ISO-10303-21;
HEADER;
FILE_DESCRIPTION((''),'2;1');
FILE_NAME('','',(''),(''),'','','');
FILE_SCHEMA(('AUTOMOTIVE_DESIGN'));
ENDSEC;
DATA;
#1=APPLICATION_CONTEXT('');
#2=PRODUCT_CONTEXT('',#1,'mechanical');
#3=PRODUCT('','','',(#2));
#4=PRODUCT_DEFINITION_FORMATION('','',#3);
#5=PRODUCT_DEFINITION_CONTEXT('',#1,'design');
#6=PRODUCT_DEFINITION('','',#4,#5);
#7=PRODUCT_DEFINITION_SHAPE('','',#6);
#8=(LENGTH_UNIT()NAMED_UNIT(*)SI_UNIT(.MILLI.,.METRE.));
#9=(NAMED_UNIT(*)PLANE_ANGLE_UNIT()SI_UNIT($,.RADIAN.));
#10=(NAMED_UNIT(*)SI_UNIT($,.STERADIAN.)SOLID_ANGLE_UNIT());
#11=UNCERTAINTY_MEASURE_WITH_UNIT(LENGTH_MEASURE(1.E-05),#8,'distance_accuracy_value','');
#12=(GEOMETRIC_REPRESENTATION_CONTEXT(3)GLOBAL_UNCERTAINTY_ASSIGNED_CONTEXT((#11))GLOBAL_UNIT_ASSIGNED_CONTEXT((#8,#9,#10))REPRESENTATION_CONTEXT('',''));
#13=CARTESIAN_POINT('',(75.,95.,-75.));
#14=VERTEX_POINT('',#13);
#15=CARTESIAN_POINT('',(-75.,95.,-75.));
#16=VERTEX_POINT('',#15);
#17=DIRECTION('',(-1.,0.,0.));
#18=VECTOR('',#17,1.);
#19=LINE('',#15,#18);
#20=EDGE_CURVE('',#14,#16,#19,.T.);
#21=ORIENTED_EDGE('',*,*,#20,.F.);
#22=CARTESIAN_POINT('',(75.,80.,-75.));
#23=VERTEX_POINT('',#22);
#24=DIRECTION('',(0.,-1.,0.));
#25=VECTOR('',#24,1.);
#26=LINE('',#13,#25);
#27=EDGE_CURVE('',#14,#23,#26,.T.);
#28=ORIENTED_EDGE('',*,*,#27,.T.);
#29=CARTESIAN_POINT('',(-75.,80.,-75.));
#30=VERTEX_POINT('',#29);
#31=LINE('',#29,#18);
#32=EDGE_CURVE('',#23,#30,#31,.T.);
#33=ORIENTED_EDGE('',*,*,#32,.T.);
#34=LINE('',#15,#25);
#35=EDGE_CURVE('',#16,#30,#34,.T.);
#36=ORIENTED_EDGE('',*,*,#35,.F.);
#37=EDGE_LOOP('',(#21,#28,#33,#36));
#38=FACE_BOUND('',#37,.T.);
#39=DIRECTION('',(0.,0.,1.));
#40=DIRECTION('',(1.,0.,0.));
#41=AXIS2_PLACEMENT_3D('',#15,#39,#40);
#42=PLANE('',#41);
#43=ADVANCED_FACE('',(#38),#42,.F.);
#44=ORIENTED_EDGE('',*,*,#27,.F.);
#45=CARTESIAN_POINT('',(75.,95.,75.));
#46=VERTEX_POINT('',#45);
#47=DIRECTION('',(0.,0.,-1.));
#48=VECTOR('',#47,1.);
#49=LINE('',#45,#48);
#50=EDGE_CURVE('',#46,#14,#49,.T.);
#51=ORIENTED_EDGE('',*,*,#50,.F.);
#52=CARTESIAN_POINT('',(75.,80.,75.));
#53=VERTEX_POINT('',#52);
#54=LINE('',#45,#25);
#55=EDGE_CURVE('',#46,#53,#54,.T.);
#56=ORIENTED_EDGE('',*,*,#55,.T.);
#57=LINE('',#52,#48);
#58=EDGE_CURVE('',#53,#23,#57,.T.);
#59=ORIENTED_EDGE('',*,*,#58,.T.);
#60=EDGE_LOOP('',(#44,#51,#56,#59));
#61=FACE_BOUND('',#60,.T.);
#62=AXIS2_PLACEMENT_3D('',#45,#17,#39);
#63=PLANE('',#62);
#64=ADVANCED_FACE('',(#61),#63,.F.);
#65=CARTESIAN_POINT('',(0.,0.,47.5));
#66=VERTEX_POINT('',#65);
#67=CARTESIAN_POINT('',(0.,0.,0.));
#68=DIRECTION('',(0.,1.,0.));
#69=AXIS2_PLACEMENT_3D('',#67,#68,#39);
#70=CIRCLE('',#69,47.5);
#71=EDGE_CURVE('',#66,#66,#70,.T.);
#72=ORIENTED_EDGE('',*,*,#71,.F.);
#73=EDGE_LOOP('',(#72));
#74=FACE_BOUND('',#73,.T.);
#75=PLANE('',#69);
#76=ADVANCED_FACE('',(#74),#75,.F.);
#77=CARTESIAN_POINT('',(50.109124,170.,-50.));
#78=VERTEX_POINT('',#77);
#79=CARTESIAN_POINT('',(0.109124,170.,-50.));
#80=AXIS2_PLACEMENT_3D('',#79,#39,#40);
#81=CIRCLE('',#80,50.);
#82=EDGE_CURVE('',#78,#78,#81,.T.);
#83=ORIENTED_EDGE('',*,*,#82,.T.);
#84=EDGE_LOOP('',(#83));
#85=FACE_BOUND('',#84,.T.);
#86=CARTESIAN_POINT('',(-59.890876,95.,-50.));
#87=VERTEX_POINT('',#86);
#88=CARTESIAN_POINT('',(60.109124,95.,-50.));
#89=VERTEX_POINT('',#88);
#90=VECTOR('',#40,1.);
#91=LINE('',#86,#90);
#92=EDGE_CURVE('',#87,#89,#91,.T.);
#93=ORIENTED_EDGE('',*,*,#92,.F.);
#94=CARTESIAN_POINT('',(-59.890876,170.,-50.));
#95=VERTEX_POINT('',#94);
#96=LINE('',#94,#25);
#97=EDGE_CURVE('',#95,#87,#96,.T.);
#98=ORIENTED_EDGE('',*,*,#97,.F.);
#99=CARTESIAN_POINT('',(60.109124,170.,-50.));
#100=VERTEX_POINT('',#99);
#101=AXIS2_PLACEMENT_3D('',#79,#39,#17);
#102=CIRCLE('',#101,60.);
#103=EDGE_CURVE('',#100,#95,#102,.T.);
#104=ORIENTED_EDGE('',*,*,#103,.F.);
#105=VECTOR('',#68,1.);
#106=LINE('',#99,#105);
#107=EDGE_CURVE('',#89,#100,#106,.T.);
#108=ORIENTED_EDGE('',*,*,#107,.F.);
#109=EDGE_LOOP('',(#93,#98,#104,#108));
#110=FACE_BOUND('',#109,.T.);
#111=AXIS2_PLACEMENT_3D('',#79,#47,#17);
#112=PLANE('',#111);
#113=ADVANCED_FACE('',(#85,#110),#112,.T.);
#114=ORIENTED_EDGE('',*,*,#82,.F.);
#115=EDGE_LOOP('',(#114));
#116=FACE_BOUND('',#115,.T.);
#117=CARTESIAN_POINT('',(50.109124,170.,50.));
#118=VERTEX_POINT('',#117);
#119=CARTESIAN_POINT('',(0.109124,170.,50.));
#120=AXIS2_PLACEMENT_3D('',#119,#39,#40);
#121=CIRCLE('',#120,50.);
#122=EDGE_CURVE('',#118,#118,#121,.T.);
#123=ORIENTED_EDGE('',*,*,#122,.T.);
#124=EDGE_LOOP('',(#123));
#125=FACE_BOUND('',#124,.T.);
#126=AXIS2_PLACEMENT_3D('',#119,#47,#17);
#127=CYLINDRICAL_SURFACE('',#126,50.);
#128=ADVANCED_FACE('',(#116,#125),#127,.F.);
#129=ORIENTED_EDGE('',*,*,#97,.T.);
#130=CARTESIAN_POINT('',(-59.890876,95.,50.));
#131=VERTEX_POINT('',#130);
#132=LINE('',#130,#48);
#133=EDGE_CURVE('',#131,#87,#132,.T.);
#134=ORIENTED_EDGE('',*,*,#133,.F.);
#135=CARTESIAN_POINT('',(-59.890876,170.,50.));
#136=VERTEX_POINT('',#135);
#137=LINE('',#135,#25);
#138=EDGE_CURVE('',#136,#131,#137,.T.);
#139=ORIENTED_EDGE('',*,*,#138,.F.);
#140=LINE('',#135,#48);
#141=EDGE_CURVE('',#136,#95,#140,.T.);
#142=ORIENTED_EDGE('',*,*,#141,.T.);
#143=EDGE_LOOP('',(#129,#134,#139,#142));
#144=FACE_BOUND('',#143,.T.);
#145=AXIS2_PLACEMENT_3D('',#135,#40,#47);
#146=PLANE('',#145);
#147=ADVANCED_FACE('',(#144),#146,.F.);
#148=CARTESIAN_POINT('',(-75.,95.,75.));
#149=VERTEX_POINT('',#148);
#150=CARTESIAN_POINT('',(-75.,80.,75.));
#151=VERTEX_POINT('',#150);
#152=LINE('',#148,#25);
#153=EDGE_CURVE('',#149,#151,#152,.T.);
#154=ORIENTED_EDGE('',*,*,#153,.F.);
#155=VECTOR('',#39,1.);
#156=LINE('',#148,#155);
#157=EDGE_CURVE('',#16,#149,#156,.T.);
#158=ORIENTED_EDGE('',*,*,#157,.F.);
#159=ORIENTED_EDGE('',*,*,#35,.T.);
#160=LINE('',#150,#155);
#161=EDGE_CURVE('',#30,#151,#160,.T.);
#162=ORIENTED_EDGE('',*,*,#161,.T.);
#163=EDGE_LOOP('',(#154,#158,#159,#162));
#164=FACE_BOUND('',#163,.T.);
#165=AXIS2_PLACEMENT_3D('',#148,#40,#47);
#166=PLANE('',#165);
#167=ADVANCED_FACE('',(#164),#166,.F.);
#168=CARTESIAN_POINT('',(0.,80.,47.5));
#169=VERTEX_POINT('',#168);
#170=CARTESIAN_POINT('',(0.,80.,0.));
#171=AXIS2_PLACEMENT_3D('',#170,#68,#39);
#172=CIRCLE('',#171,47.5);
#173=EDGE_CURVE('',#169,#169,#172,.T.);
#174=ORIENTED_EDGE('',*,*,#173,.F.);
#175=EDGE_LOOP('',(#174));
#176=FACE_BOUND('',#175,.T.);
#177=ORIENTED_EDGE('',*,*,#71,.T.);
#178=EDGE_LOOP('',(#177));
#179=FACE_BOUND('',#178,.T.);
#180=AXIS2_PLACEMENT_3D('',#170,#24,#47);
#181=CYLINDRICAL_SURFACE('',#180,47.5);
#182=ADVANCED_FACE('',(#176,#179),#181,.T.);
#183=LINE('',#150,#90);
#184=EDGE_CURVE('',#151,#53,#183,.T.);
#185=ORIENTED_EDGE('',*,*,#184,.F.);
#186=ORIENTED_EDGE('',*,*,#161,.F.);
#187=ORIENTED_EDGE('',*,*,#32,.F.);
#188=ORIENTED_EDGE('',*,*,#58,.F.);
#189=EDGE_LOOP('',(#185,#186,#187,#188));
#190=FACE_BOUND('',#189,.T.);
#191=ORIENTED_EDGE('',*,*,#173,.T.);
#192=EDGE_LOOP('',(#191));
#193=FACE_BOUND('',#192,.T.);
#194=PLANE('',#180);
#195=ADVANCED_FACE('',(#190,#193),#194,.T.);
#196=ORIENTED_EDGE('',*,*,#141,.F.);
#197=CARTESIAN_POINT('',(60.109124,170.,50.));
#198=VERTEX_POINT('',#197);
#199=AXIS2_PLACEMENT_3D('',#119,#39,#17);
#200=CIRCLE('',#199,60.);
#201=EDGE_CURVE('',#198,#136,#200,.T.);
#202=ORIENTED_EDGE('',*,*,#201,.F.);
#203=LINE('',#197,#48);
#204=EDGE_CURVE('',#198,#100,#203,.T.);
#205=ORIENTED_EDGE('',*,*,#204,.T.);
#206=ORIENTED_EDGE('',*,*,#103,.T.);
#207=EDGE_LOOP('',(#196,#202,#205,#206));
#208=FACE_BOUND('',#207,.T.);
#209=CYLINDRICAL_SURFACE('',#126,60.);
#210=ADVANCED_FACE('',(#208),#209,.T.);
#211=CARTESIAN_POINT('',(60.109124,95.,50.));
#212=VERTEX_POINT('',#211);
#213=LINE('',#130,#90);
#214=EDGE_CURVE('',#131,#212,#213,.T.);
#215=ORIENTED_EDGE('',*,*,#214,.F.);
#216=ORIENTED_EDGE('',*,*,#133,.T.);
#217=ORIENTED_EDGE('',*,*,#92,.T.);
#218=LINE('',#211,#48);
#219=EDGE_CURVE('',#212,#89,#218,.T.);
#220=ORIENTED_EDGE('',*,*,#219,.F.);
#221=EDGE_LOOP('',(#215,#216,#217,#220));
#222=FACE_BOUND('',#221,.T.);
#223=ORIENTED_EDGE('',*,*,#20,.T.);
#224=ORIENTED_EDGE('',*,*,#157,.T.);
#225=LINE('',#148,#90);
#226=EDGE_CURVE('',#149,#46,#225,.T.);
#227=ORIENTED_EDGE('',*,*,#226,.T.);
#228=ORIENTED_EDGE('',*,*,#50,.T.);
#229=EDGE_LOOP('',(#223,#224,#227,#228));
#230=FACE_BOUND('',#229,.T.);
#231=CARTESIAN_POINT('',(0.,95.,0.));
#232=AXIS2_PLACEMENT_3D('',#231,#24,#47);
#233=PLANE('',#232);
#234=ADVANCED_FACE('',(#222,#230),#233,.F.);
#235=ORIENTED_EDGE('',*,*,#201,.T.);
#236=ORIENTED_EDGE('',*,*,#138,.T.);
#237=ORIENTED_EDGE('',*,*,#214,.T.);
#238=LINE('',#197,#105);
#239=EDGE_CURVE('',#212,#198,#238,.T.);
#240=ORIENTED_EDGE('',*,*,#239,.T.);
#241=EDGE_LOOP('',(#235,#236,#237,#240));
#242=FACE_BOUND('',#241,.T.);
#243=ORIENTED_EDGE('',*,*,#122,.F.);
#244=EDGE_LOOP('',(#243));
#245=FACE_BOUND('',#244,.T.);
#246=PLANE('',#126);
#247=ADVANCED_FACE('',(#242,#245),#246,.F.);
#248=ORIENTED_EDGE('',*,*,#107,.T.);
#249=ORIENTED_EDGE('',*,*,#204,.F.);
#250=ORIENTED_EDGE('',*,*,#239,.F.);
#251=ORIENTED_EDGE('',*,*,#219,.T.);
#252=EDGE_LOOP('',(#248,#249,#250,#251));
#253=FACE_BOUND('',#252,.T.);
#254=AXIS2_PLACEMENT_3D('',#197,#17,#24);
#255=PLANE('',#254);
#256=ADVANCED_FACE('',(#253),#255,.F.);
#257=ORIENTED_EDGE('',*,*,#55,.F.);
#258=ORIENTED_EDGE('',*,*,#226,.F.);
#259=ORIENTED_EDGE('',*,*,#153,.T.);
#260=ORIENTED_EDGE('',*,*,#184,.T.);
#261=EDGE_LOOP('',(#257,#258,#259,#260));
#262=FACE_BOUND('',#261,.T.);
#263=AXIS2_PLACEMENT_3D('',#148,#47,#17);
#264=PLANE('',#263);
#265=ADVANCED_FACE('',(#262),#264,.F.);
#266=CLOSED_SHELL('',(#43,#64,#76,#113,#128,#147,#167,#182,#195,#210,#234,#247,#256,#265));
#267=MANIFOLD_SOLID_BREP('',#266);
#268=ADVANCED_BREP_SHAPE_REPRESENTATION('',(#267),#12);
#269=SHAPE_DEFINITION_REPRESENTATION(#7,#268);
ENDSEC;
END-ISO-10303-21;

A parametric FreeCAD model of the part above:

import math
import FreeCAD as App
import Part
import Sketcher
Q = App.Units.Quantity


def add_polygon(sketch, points):
    """Adds a closed chain of lines whose ends are joined by coincident constraints."""
    first, n = sketch.GeometryCount, len(points)
    for a, b in zip(points, points[1:] + points[:1]):
        sketch.addGeometry(Part.LineSegment(App.Vector(*a, 0), App.Vector(*b, 0)), False)
    for i in range(n):
        sketch.addConstraint(Sketcher.Constraint("Coincident", first + i, 2, first + (i + 1) % n, 1))

doc = App.newDocument("Part")
body = doc.addObject("PartDesign::Body", "Body")

sketch1 = body.newObject("Sketcher::SketchObject", "Sketch")
sketch1.AttachmentSupport = (doc.getObject("XZ_Plane"), [""])
sketch1.MapMode = "FlatFace"
sketch1.addGeometry(Part.Circle(App.Vector(0, 0, 0), App.Vector(0, 0, 1), 48), False)
sketch1.addConstraint(Sketcher.Constraint("Coincident", 0, 3, -1, 1))
sketch1.addConstraint(Sketcher.Constraint("Diameter", 0, Q("95 mm")))
pad1 = body.newObject("PartDesign::Pad", "Pad")
pad1.Profile = sketch1
pad1.Length = 80
pad1.Reversed = True

sketch2 = body.newObject("Sketcher::SketchObject", "Sketch001")
sketch2.AttachmentSupport = (doc.getObject("XZ_Plane"), [""])
sketch2.MapMode = "FlatFace"
sketch2.AttachmentOffset = App.Placement(App.Vector(0, 0, -80), App.Rotation())
add_polygon(sketch2, [(-75, -75), (-75, 75), (75, 75), (75, -75)])
sketch2.addConstraint(Sketcher.Constraint("Vertical", 0))
sketch2.addConstraint(Sketcher.Constraint("Horizontal", 1))
sketch2.addConstraint(Sketcher.Constraint("Vertical", 2))
sketch2.addConstraint(Sketcher.Constraint("Horizontal", 3))
sketch2.addConstraint(Sketcher.Constraint("Symmetric", 0, 2, 2, 2, -1, 1))
sketch2.addConstraint(Sketcher.Constraint("Equal", 3, 0))
sketch2.addConstraint(Sketcher.Constraint("DistanceX", 1, 1, 1, 2, Q("150 mm")))
pad2 = body.newObject("PartDesign::Pad", "Pad001")
pad2.Profile = sketch2
pad2.Length = 15
pad2.Reversed = True

sketch3 = body.newObject("Sketcher::SketchObject", "Sketch002")
sketch3.AttachmentSupport = (doc.getObject("XY_Plane"), [""])
sketch3.MapMode = "FlatFace"
sketch3.addGeometry(Part.LineSegment(App.Vector(-60, 95, 0), App.Vector(60, 95, 0)), False)
sketch3.addGeometry(Part.LineSegment(App.Vector(60, 95, 0), App.Vector(60, 170, 0)), False)
sketch3.addGeometry(Part.ArcOfCircle(Part.Circle(App.Vector(0, 170, 0), App.Vector(0, 0, 1), 60), math.radians(0), math.radians(180)), False)
sketch3.addGeometry(Part.LineSegment(App.Vector(-60, 170, 0), App.Vector(-60, 95, 0)), False)
sketch3.addGeometry(Part.Circle(App.Vector(0, 170, 0), App.Vector(0, 0, 1), 50), False)
sketch3.addConstraint(Sketcher.Constraint("Coincident", 0, 2, 1, 1))
sketch3.addConstraint(Sketcher.Constraint("Tangent", 1, 2, 2, 1))
sketch3.addConstraint(Sketcher.Constraint("Tangent", 2, 2, 3, 1))
sketch3.addConstraint(Sketcher.Constraint("Coincident", 3, 2, 0, 1))
sketch3.addConstraint(Sketcher.Constraint("Horizontal", 0))
sketch3.addConstraint(Sketcher.Constraint("Vertical", 1))
sketch3.addConstraint(Sketcher.Constraint("Vertical", 3))
sketch3.addConstraint(Sketcher.Constraint("Coincident", 4, 3, 2, 3))
sketch3.addConstraint(Sketcher.Constraint("Diameter", 4, Q("100 mm")))
sketch3.addConstraint(Sketcher.Constraint("Radius", 2, Q("60 mm")))
sketch3.addConstraint(Sketcher.Constraint("DistanceY", 1, 1, 1, 2, Q("75 mm")))
sketch3.addConstraint(Sketcher.Constraint("DistanceY", -1, 1, 2, 3, Q("170 mm")))
sketch3.addConstraint(Sketcher.Constraint("DistanceX", -1, 1, 2, 3, Q("0.109124 mm")))
pad3 = body.newObject("PartDesign::Pad", "Pad002")
pad3.Profile = sketch3
pad3.Length = 100
pad3.Midplane = True

doc.recompute()
